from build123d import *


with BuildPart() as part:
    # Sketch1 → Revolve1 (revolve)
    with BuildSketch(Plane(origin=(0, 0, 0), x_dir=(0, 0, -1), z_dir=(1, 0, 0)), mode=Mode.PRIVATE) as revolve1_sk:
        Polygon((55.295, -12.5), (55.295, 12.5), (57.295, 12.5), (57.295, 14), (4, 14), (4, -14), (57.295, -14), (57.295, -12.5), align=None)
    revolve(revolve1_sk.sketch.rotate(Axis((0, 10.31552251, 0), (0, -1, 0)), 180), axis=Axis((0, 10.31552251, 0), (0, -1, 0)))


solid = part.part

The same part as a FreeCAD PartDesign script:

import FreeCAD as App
import Part
import Sketcher
from FreeCAD import Vector
Q = App.Units.Quantity

doc = App.newDocument("Part")
body = doc.addObject("PartDesign::Body", "Body")

sketch1 = doc.addObject("Sketcher::SketchObject", "Sketch")
body.addObject(sketch1)
sketch1.AttachmentSupport = (doc.YZ_Plane, [""])
sketch1.MapMode = "FlatFace"
sketch1.addGeometry([
    Part.LineSegment(Vector(-12.5, -55.3, 0), Vector(12.5, -55.3, 0)),
    Part.LineSegment(Vector(12.5, -55.3, 0), Vector(12.5, -57.3, 0)),
    Part.LineSegment(Vector(12.5, -57.3, 0), Vector(14, -57.3, 0)),
    Part.LineSegment(Vector(14, -57.3, 0), Vector(14, -4, 0)),
    Part.LineSegment(Vector(14, -4, 0), Vector(-14, -4, 0)),
    Part.LineSegment(Vector(-14, -4, 0), Vector(-14, -57.3, 0)),
    Part.LineSegment(Vector(-14, -57.3, 0), Vector(-12.5, -57.3, 0)),
    Part.LineSegment(Vector(-12.5, -57.3, 0), Vector(-12.5, -55.3, 0)),
], False)
sketch1.addConstraint([
    Sketcher.Constraint("Coincident", 0, 2, 1, 1),
    Sketcher.Constraint("Coincident", 1, 2, 2, 1),
    Sketcher.Constraint("Coincident", 2, 2, 3, 1),
    Sketcher.Constraint("Coincident", 3, 2, 4, 1),
    Sketcher.Constraint("Coincident", 4, 2, 5, 1),
    Sketcher.Constraint("Coincident", 5, 2, 6, 1),
    Sketcher.Constraint("Coincident", 6, 2, 7, 1),
    Sketcher.Constraint("Coincident", 7, 2, 0, 1),
    Sketcher.Constraint("Horizontal", 0),
    Sketcher.Constraint("Vertical", 1),
    Sketcher.Constraint("Horizontal", 2),
    Sketcher.Constraint("Vertical", 3),
    Sketcher.Constraint("Horizontal", 4),
    Sketcher.Constraint("Vertical", 5),
    Sketcher.Constraint("Horizontal", 6),
    Sketcher.Constraint("Vertical", 7),
    Sketcher.Constraint("Symmetric", 2, 2, 5, 2, -2),
    Sketcher.Constraint("Equal", 2, 6),
    Sketcher.Constraint("DistanceX", 0, 1, 0, 2, Q("25 mm")),
    Sketcher.Constraint("DistanceX", 4, 2, 4, 1, Q("28 mm")),
    Sketcher.Constraint("DistanceY", 1, 2, 1, 1, Q("2 mm")),
    Sketcher.Constraint("DistanceY", 3, 2, -1, 1, Q("4 mm")),
    Sketcher.Constraint("DistanceY", 3, 1, 3, 2, Q("53.295 mm")),
])
revolution = doc.addObject("PartDesign::Revolution", "Revolution")
body.addObject(revolution)
revolution.Profile = sketch1
revolution.ReferenceAxis = (sketch1, ["H_Axis"])
revolution.Angle = 360

doc.recompute()
